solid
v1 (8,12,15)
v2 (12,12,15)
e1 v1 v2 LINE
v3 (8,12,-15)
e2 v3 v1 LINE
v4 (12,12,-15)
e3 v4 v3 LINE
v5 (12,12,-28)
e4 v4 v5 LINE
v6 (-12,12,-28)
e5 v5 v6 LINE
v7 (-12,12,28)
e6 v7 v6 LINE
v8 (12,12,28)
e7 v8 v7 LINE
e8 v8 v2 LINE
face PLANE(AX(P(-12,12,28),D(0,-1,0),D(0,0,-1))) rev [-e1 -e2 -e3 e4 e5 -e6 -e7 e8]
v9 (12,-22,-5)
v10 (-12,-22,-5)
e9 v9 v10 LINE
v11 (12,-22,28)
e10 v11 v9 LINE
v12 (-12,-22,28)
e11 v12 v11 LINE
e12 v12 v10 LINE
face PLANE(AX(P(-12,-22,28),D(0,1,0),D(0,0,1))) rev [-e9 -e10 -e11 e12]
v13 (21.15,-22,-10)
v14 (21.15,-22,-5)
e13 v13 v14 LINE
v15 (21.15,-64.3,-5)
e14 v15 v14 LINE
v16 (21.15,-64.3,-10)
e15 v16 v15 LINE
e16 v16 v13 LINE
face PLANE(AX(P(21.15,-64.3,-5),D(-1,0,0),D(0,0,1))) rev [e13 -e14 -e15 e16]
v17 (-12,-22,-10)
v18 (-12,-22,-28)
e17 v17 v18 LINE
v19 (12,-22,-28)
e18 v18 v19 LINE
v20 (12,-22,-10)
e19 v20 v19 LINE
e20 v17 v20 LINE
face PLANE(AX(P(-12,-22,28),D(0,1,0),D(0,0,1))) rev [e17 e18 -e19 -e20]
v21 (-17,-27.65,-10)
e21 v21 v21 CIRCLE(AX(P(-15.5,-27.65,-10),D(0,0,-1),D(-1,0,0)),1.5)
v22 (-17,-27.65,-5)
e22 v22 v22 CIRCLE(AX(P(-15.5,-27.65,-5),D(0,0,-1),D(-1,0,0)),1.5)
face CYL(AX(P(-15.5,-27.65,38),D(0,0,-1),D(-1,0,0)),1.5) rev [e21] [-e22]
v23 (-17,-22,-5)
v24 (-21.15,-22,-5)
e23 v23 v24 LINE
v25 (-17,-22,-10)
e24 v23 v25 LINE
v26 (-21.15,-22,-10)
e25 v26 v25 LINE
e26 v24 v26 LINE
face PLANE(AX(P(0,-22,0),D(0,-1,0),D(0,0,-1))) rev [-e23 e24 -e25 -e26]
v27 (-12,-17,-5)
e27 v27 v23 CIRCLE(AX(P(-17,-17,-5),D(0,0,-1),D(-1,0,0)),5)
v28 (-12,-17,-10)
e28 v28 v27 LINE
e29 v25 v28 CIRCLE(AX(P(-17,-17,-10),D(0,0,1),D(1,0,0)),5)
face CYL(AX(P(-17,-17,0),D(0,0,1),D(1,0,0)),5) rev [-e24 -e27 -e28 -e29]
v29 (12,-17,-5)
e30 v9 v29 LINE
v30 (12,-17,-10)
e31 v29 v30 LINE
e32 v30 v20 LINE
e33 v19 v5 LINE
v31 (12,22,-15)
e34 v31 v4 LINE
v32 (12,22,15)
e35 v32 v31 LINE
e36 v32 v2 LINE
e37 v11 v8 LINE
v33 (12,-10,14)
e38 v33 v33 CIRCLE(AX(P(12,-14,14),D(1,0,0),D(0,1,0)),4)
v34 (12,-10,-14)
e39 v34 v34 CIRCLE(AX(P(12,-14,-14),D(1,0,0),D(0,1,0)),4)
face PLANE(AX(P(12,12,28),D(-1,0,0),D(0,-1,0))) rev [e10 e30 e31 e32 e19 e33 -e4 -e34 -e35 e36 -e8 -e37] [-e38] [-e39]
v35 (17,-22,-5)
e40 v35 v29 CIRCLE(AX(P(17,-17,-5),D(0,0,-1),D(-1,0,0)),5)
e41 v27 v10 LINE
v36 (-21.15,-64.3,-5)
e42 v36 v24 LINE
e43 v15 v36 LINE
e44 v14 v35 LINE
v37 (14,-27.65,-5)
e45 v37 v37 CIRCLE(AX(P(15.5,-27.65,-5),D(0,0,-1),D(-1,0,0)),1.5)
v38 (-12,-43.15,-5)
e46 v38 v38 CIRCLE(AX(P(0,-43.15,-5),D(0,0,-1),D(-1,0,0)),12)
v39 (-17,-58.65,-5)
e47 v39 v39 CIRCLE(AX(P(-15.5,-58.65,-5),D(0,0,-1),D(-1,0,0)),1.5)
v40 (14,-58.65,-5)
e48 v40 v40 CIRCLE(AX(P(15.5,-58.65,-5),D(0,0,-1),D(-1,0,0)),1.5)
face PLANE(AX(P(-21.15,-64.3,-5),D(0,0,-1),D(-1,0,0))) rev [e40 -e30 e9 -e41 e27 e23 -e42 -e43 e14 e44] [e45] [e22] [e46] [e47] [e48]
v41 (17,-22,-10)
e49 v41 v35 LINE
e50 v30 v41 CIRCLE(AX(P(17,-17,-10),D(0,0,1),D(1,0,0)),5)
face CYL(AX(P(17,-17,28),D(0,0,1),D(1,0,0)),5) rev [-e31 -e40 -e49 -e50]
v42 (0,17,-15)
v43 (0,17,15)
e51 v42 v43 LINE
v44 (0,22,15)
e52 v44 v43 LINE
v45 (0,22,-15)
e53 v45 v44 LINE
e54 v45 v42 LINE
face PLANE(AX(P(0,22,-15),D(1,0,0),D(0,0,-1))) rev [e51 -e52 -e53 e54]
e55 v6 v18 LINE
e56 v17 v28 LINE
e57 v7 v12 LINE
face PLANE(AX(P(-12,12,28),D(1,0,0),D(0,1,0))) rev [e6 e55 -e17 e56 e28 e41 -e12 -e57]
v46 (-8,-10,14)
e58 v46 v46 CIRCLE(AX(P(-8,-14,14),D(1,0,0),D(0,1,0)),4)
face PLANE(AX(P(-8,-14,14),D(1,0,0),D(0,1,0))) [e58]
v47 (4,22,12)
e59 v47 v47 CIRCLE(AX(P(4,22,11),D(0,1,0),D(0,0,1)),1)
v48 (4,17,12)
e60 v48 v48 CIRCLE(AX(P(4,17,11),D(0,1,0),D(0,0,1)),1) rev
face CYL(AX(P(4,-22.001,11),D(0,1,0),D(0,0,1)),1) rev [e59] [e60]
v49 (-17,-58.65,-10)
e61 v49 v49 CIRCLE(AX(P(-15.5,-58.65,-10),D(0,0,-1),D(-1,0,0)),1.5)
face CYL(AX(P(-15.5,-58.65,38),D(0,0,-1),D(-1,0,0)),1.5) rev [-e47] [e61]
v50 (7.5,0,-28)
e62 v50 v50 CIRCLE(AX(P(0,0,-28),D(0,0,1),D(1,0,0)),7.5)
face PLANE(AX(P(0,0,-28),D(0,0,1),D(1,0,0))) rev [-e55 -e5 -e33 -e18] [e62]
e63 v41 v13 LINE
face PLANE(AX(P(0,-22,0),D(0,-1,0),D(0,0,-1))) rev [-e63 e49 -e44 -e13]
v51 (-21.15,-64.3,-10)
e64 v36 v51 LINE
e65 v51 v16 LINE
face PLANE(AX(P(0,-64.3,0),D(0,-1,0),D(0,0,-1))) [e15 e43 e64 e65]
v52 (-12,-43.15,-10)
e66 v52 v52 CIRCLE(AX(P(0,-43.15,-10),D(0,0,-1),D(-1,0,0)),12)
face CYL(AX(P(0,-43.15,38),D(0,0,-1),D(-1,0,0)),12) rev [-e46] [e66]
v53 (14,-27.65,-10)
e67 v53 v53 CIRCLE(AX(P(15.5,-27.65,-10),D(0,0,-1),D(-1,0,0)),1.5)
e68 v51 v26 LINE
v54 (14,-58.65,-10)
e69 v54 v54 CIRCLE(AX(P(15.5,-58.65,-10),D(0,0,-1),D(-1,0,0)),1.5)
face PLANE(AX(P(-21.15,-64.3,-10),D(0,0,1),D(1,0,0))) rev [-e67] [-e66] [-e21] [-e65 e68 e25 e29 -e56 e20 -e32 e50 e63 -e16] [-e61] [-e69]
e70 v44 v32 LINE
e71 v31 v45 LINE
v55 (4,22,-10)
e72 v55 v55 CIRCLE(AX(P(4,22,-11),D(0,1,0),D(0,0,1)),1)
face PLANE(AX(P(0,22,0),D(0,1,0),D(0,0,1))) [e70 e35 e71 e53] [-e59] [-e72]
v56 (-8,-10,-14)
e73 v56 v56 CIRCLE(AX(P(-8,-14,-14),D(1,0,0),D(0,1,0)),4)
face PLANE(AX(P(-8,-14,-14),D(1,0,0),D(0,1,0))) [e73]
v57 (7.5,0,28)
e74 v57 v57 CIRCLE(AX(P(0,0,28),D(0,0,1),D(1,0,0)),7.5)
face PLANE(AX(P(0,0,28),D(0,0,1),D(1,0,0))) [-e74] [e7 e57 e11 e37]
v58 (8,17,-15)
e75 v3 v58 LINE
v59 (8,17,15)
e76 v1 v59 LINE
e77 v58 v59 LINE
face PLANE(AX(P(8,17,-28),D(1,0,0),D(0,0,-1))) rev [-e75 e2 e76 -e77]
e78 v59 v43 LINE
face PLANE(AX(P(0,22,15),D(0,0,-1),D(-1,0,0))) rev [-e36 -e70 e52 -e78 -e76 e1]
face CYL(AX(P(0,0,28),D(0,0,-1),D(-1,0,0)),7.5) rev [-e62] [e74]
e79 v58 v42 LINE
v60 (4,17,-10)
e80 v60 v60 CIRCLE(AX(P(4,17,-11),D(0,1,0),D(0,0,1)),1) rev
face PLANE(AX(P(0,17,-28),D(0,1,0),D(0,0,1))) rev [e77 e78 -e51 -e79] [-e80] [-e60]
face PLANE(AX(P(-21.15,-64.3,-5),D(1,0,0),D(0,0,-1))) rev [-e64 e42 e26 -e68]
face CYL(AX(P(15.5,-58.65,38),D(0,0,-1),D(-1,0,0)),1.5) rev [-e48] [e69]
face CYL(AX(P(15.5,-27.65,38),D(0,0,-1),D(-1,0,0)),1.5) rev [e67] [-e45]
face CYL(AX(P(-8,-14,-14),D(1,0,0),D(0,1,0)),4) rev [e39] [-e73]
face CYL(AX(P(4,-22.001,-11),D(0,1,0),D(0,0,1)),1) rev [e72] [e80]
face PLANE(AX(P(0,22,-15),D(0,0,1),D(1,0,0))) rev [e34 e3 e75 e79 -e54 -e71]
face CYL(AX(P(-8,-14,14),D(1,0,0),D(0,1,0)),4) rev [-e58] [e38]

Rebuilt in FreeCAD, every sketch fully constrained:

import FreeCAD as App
import Part
import Sketcher

V = App.Vector
Q = App.Units.Quantity


def edges_at(feature, points):
    """Names of the edges that pass closest to the given points."""
    edges = feature.Shape.Edges
    near = lambda p: min(range(len(edges)), key=lambda i: edges[i].distToShape(Part.Vertex(*p))[0])
    return sorted({f"Edge{near(p) + 1}" for p in points})

doc = App.newDocument("Part")
body = doc.addObject("PartDesign::Body", "Body")

# Sketch on XY plane
sketch1 = doc.addObject("Sketcher::SketchObject", "Sketch")
body.addObject(sketch1)
sketch1.AttachmentSupport = (doc.XY_Plane, [""])
sketch1.MapMode = "FlatFace"
sketch1.addGeometry([
    Part.LineSegment(V(-12, 12, 0), V(-12, -22, 0)),  # 0
    Part.LineSegment(V(-12, -22, 0), V(12, -22, 0)),  # 1
    Part.LineSegment(V(12, -22, 0), V(12, 12, 0)),  # 2
    Part.LineSegment(V(12, 12, 0), V(-12, 12, 0)),  # 3
    Part.Circle(V(0, 0, 0), V(0, 0, 1), 8),  # 4
], False)
sketch1.addConstraint([
    Sketcher.Constraint("Coincident", 0, 2, 1, 1),
    Sketcher.Constraint("Coincident", 1, 2, 2, 1),
    Sketcher.Constraint("Coincident", 2, 2, 3, 1),
    Sketcher.Constraint("Coincident", 3, 2, 0, 1),
    Sketcher.Constraint("Vertical", 0),
    Sketcher.Constraint("Horizontal", 1),
    Sketcher.Constraint("Vertical", 2),
    Sketcher.Constraint("Horizontal", 3),
    Sketcher.Constraint("Coincident", 4, 3, -1, 1),
    Sketcher.Constraint("Diameter", 4, Q("15 mm")),
    Sketcher.Constraint("DistanceX", 1, 1, 1, 2, Q("24 mm")),
    Sketcher.Constraint("DistanceY", 0, 2, 0, 1, Q("34 mm")),
    Sketcher.Constraint("DistanceX", 0, 2, -1, 1, Q("12 mm")),
    Sketcher.Constraint("DistanceY", 0, 2, -1, 1, Q("22 mm")),
])
pad1 = doc.addObject("PartDesign::Pad", "Pad")
body.addObject(pad1)
pad1.Profile = sketch1
pad1.Length = 56
pad1.Midplane = True

# Sketch on XZ plane
sketch2 = doc.addObject("Sketcher::SketchObject", "Sketch001")
body.addObject(sketch2)
sketch2.AttachmentSupport = (doc.XZ_Plane, [""])
sketch2.MapMode = "FlatFace"
sketch2.AttachmentOffset = App.Placement(V(0, 0, -12), App.Rotation())
sketch2.addGeometry([
    Part.LineSegment(V(0, -15, 0), V(0, 15, 0)),
    Part.LineSegment(V(0, 15, 0), V(12, 15, 0)),
    Part.LineSegment(V(12, 15, 0), V(12, -15, 0)),
    Part.LineSegment(V(12, -15, 0), V(0, -15, 0)),
], False)
sketch2.addConstraint([
    Sketcher.Constraint("Coincident", 0, 2, 1, 1),
    Sketcher.Constraint("Coincident", 1, 2, 2, 1),
    Sketcher.Constraint("Coincident", 2, 2, 3, 1),
    Sketcher.Constraint("Coincident", 3, 2, 0, 1),
    Sketcher.Constraint("Vertical", 0),
    Sketcher.Constraint("Horizontal", 1),
    Sketcher.Constraint("Vertical", 2),
    Sketcher.Constraint("Horizontal", 3),
    Sketcher.Constraint("Symmetric", 0, 2, 3, 2, -1, 1),
    Sketcher.Constraint("DistanceX", 1, 1, 1, 2, Q("12 mm")),
    Sketcher.Constraint("DistanceY", 0, 1, 0, 2, Q("30 mm")),
])
pad2 = doc.addObject("PartDesign::Pad", "Pad001")
body.addObject(pad2)
pad2.Profile = sketch2
pad2.Length = 10
pad2.Reversed = True

# Sketch on XY plane
sketch3 = doc.addObject("Sketcher::SketchObject", "Sketch002")
body.addObject(sketch3)
sketch3.AttachmentSupport = (doc.XY_Plane, [""])
sketch3.MapMode = "FlatFace"
sketch3.AttachmentOffset = App.Placement(V(0, 0, 15), App.Rotation())
sketch3.addGeometry([
    Part.LineSegment(V(0, 17, 0), V(0, 12, 0)),
    Part.LineSegment(V(0, 12, 0), V(8, 12, 0)),
    Part.LineSegment(V(8, 12, 0), V(8, 17, 0)),
    Part.LineSegment(V(8, 17, 0), V(0, 17, 0)),
], False)
sketch3.addConstraint([
    Sketcher.Constraint("Coincident", 0, 2, 1, 1),
    Sketcher.Constraint("Coincident", 1, 2, 2, 1),
    Sketcher.Constraint("Coincident", 2, 2, 3, 1),
    Sketcher.Constraint("Coincident", 3, 2, 0, 1),
    Sketcher.Constraint("Vertical", 0),
    Sketcher.Constraint("Horizontal", 1),
    Sketcher.Constraint("Vertical", 2),
    Sketcher.Constraint("Horizontal", 3),
    Sketcher.Constraint("PointOnObject", 0, 2, -2),
    Sketcher.Constraint("DistanceX", 1, 1, 1, 2, Q("8 mm")),
    Sketcher.Constraint("DistanceY", 0, 2, 0, 1, Q("5 mm")),
    Sketcher.Constraint("DistanceY", -1, 1, 0, 2, Q("12 mm")),
])
pocket1 = doc.addObject("PartDesign::Pocket", "Pocket")
body.addObject(pocket1)
pocket1.Profile = sketch3
pocket1.Type = "ThroughAll"

# Sketch on XZ plane
sketch4 = doc.addObject("Sketcher::SketchObject", "Sketch003")
body.addObject(sketch4)
sketch4.AttachmentSupport = (doc.XZ_Plane, [""])
sketch4.MapMode = "FlatFace"
sketch4.AttachmentOffset = App.Placement(V(0, 0, -22), App.Rotation())
sketch4.addGeometry(Part.Circle(V(4, -11, 0), V(0, 0, 1), 1), False)
sketch4.addConstraint([
    Sketcher.Constraint("Diameter", 0, Q("2 mm")),
    Sketcher.Constraint("DistanceX", -1, 1, 0, 3, Q("4 mm")),
    Sketcher.Constraint("DistanceY", 0, 3, -1, 1, Q("11 mm")),
])
pocket2 = doc.addObject("PartDesign::Pocket", "Pocket001")
body.addObject(pocket2)
pocket2.Profile = sketch4
pocket2.Type = "UpToFirst"
pocket2.Reversed = True

# Sketch on XZ plane
sketch5 = doc.addObject("Sketcher::SketchObject", "Sketch004")
body.addObject(sketch5)
sketch5.AttachmentSupport = (doc.XZ_Plane, [""])
sketch5.MapMode = "FlatFace"
sketch5.AttachmentOffset = App.Placement(V(0, 0, -22), App.Rotation())
sketch5.addGeometry(Part.Circle(V(4, 11, 0), V(0, 0, 1), 1), False)
sketch5.addConstraint([
    Sketcher.Constraint("Diameter", 0, Q("2 mm")),
    Sketcher.Constraint("DistanceX", -1, 1, 0, 3, Q("4 mm")),
    Sketcher.Constraint("DistanceY", -1, 1, 0, 3, Q("11 mm")),
])
pocket3 = doc.addObject("PartDesign::Pocket", "Pocket002")
body.addObject(pocket3)
pocket3.Profile = sketch5
pocket3.Type = "UpToFirst"
pocket3.Reversed = True

# Sketch on YZ plane
sketch6 = doc.addObject("Sketcher::SketchObject", "Sketch005")
body.addObject(sketch6)
sketch6.AttachmentSupport = (doc.YZ_Plane, [""])
sketch6.MapMode = "FlatFace"
sketch6.AttachmentOffset = App.Placement(V(0, 0, 12), App.Rotation())
sketch6.addGeometry([
    Part.Circle(V(-14, 14, 0), V(0, 0, 1), 4),
    Part.Circle(V(-14, -14, 0), V(0, 0, 1), 4),
], False)
sketch6.addConstraint([
    Sketcher.Constraint("Equal", 0, 1),
    Sketcher.Constraint("Symmetric", 0, 3, 1, 3, -1),
    Sketcher.Constraint("Diameter", 0, Q("8 mm")),
    Sketcher.Constraint("DistanceX", 0, 3, -1, 1, Q("14 mm")),
    Sketcher.Constraint("DistanceY", -1, 1, 0, 3, Q("14 mm")),
])
pocket4 = doc.addObject("PartDesign::Pocket", "Pocket003")
body.addObject(pocket4)
pocket4.Profile = sketch6
pocket4.Length = 20

# Sketch on XZ plane
sketch7 = doc.addObject("Sketcher::SketchObject", "Sketch006")
body.addObject(sketch7)
sketch7.AttachmentSupport = (doc.XZ_Plane, [""])
sketch7.MapMode = "FlatFace"
sketch7.AttachmentOffset = App.Placement(V(0, 0, 22), App.Rotation())
sketch7.addGeometry([
    Part.LineSegment(V(-21, -5, 0), V(-21, -10, 0)),
    Part.LineSegment(V(-21, -10, 0), V(21, -10, 0)),
    Part.LineSegment(V(21, -10, 0), V(21, -5, 0)),
    Part.LineSegment(V(21, -5, 0), V(-21, -5, 0)),
], False)
sketch7.addConstraint([
    Sketcher.Constraint("Coincident", 0, 2, 1, 1),
    Sketcher.Constraint("Coincident", 1, 2, 2, 1),
    Sketcher.Constraint("Coincident", 2, 2, 3, 1),
    Sketcher.Constraint("Coincident", 3, 2, 0, 1),
    Sketcher.Constraint("Vertical", 0),
    Sketcher.Constraint("Horizontal", 1),
    Sketcher.Constraint("Vertical", 2),
    Sketcher.Constraint("Horizontal", 3),
    Sketcher.Constraint("DistanceY", 0, 2, 0, 1, Q("5 mm")),
    Sketcher.Constraint("DistanceX", 1, 1, 1, 2, Q("42.3 mm")),
    Sketcher.Constraint("DistanceY", 0, 2, -1, 1, Q("10 mm")),
    Sketcher.Constraint("DistanceX", 0, 2, -1, 1, Q("21.15 mm")),
])
pad3 = doc.addObject("PartDesign::Pad", "Pad002")
body.addObject(pad3)
pad3.Profile = sketch7
pad3.Length = 42.3

# Sketch on XY plane
sketch8 = doc.addObject("Sketcher::SketchObject", "Sketch007")
body.addObject(sketch8)
sketch8.AttachmentSupport = (doc.XY_Plane, [""])
sketch8.MapMode = "FlatFace"
sketch8.AttachmentOffset = App.Placement(V(0, 0, -10), App.Rotation())
sketch8.addGeometry([
    Part.Circle(V(0, -43.1, 0), V(0, 0, 1), 12),  # 0
    Part.Circle(V(15.5, -27.6, 0), V(0, 0, 1), 1.5),  # 1
    Part.Circle(V(-15.5, -27.6, 0), V(0, 0, 1), 1.5),  # 2
    Part.Circle(V(-15.5, -58.6, 0), V(0, 0, 1), 1.5),  # 3
    Part.Circle(V(15.5, -58.6, 0), V(0, 0, 1), 1.5),  # 4
], False)
sketch8.addConstraint([
    Sketcher.Constraint("Equal", 1, 2),
    Sketcher.Constraint("Equal", 2, 3),
    Sketcher.Constraint("Equal", 3, 4),
    Sketcher.Constraint("Symmetric", 1, 3, 2, 3, -2),
    Sketcher.Constraint("Symmetric", 3, 3, 4, 3, -2),
    Sketcher.Constraint("PointOnObject", 0, 3, -2),
    Sketcher.Constraint("Vertical", 2, 3, 3, 3),
    Sketcher.Constraint("Diameter", 0, Q("24 mm")),
    Sketcher.Constraint("Diameter", 1, Q("3 mm")),
    Sketcher.Constraint("DistanceX", 2, 3, 1, 3, Q("31 mm")),
    Sketcher.Constraint("DistanceY", 3, 3, 2, 3, Q("31 mm")),
    Sketcher.Constraint("DistanceY", 0, 3, 1, 3, Q("15.5 mm")),
    Sketcher.Constraint("DistanceY", 0, 3, -1, 1, Q("43.15 mm")),
])
pocket5 = doc.addObject("PartDesign::Pocket", "Pocket004")
body.addObject(pocket5)
pocket5.Profile = sketch8
pocket5.Length = 48
pocket5.Reversed = True
doc.recompute()

fillet = doc.addObject("PartDesign::Fillet", "Fillet")
body.addObject(fillet)
fillet.Base = (pocket5, edges_at(pocket5, [(-12, -22, -7.5)]))
fillet.Radius = 5
doc.recompute()

fillet2 = doc.addObject("PartDesign::Fillet", "Fillet001")
body.addObject(fillet2)
fillet2.Base = (fillet, edges_at(fillet, [(12, -22, -7.5)]))
fillet2.Radius = 5

doc.recompute()
